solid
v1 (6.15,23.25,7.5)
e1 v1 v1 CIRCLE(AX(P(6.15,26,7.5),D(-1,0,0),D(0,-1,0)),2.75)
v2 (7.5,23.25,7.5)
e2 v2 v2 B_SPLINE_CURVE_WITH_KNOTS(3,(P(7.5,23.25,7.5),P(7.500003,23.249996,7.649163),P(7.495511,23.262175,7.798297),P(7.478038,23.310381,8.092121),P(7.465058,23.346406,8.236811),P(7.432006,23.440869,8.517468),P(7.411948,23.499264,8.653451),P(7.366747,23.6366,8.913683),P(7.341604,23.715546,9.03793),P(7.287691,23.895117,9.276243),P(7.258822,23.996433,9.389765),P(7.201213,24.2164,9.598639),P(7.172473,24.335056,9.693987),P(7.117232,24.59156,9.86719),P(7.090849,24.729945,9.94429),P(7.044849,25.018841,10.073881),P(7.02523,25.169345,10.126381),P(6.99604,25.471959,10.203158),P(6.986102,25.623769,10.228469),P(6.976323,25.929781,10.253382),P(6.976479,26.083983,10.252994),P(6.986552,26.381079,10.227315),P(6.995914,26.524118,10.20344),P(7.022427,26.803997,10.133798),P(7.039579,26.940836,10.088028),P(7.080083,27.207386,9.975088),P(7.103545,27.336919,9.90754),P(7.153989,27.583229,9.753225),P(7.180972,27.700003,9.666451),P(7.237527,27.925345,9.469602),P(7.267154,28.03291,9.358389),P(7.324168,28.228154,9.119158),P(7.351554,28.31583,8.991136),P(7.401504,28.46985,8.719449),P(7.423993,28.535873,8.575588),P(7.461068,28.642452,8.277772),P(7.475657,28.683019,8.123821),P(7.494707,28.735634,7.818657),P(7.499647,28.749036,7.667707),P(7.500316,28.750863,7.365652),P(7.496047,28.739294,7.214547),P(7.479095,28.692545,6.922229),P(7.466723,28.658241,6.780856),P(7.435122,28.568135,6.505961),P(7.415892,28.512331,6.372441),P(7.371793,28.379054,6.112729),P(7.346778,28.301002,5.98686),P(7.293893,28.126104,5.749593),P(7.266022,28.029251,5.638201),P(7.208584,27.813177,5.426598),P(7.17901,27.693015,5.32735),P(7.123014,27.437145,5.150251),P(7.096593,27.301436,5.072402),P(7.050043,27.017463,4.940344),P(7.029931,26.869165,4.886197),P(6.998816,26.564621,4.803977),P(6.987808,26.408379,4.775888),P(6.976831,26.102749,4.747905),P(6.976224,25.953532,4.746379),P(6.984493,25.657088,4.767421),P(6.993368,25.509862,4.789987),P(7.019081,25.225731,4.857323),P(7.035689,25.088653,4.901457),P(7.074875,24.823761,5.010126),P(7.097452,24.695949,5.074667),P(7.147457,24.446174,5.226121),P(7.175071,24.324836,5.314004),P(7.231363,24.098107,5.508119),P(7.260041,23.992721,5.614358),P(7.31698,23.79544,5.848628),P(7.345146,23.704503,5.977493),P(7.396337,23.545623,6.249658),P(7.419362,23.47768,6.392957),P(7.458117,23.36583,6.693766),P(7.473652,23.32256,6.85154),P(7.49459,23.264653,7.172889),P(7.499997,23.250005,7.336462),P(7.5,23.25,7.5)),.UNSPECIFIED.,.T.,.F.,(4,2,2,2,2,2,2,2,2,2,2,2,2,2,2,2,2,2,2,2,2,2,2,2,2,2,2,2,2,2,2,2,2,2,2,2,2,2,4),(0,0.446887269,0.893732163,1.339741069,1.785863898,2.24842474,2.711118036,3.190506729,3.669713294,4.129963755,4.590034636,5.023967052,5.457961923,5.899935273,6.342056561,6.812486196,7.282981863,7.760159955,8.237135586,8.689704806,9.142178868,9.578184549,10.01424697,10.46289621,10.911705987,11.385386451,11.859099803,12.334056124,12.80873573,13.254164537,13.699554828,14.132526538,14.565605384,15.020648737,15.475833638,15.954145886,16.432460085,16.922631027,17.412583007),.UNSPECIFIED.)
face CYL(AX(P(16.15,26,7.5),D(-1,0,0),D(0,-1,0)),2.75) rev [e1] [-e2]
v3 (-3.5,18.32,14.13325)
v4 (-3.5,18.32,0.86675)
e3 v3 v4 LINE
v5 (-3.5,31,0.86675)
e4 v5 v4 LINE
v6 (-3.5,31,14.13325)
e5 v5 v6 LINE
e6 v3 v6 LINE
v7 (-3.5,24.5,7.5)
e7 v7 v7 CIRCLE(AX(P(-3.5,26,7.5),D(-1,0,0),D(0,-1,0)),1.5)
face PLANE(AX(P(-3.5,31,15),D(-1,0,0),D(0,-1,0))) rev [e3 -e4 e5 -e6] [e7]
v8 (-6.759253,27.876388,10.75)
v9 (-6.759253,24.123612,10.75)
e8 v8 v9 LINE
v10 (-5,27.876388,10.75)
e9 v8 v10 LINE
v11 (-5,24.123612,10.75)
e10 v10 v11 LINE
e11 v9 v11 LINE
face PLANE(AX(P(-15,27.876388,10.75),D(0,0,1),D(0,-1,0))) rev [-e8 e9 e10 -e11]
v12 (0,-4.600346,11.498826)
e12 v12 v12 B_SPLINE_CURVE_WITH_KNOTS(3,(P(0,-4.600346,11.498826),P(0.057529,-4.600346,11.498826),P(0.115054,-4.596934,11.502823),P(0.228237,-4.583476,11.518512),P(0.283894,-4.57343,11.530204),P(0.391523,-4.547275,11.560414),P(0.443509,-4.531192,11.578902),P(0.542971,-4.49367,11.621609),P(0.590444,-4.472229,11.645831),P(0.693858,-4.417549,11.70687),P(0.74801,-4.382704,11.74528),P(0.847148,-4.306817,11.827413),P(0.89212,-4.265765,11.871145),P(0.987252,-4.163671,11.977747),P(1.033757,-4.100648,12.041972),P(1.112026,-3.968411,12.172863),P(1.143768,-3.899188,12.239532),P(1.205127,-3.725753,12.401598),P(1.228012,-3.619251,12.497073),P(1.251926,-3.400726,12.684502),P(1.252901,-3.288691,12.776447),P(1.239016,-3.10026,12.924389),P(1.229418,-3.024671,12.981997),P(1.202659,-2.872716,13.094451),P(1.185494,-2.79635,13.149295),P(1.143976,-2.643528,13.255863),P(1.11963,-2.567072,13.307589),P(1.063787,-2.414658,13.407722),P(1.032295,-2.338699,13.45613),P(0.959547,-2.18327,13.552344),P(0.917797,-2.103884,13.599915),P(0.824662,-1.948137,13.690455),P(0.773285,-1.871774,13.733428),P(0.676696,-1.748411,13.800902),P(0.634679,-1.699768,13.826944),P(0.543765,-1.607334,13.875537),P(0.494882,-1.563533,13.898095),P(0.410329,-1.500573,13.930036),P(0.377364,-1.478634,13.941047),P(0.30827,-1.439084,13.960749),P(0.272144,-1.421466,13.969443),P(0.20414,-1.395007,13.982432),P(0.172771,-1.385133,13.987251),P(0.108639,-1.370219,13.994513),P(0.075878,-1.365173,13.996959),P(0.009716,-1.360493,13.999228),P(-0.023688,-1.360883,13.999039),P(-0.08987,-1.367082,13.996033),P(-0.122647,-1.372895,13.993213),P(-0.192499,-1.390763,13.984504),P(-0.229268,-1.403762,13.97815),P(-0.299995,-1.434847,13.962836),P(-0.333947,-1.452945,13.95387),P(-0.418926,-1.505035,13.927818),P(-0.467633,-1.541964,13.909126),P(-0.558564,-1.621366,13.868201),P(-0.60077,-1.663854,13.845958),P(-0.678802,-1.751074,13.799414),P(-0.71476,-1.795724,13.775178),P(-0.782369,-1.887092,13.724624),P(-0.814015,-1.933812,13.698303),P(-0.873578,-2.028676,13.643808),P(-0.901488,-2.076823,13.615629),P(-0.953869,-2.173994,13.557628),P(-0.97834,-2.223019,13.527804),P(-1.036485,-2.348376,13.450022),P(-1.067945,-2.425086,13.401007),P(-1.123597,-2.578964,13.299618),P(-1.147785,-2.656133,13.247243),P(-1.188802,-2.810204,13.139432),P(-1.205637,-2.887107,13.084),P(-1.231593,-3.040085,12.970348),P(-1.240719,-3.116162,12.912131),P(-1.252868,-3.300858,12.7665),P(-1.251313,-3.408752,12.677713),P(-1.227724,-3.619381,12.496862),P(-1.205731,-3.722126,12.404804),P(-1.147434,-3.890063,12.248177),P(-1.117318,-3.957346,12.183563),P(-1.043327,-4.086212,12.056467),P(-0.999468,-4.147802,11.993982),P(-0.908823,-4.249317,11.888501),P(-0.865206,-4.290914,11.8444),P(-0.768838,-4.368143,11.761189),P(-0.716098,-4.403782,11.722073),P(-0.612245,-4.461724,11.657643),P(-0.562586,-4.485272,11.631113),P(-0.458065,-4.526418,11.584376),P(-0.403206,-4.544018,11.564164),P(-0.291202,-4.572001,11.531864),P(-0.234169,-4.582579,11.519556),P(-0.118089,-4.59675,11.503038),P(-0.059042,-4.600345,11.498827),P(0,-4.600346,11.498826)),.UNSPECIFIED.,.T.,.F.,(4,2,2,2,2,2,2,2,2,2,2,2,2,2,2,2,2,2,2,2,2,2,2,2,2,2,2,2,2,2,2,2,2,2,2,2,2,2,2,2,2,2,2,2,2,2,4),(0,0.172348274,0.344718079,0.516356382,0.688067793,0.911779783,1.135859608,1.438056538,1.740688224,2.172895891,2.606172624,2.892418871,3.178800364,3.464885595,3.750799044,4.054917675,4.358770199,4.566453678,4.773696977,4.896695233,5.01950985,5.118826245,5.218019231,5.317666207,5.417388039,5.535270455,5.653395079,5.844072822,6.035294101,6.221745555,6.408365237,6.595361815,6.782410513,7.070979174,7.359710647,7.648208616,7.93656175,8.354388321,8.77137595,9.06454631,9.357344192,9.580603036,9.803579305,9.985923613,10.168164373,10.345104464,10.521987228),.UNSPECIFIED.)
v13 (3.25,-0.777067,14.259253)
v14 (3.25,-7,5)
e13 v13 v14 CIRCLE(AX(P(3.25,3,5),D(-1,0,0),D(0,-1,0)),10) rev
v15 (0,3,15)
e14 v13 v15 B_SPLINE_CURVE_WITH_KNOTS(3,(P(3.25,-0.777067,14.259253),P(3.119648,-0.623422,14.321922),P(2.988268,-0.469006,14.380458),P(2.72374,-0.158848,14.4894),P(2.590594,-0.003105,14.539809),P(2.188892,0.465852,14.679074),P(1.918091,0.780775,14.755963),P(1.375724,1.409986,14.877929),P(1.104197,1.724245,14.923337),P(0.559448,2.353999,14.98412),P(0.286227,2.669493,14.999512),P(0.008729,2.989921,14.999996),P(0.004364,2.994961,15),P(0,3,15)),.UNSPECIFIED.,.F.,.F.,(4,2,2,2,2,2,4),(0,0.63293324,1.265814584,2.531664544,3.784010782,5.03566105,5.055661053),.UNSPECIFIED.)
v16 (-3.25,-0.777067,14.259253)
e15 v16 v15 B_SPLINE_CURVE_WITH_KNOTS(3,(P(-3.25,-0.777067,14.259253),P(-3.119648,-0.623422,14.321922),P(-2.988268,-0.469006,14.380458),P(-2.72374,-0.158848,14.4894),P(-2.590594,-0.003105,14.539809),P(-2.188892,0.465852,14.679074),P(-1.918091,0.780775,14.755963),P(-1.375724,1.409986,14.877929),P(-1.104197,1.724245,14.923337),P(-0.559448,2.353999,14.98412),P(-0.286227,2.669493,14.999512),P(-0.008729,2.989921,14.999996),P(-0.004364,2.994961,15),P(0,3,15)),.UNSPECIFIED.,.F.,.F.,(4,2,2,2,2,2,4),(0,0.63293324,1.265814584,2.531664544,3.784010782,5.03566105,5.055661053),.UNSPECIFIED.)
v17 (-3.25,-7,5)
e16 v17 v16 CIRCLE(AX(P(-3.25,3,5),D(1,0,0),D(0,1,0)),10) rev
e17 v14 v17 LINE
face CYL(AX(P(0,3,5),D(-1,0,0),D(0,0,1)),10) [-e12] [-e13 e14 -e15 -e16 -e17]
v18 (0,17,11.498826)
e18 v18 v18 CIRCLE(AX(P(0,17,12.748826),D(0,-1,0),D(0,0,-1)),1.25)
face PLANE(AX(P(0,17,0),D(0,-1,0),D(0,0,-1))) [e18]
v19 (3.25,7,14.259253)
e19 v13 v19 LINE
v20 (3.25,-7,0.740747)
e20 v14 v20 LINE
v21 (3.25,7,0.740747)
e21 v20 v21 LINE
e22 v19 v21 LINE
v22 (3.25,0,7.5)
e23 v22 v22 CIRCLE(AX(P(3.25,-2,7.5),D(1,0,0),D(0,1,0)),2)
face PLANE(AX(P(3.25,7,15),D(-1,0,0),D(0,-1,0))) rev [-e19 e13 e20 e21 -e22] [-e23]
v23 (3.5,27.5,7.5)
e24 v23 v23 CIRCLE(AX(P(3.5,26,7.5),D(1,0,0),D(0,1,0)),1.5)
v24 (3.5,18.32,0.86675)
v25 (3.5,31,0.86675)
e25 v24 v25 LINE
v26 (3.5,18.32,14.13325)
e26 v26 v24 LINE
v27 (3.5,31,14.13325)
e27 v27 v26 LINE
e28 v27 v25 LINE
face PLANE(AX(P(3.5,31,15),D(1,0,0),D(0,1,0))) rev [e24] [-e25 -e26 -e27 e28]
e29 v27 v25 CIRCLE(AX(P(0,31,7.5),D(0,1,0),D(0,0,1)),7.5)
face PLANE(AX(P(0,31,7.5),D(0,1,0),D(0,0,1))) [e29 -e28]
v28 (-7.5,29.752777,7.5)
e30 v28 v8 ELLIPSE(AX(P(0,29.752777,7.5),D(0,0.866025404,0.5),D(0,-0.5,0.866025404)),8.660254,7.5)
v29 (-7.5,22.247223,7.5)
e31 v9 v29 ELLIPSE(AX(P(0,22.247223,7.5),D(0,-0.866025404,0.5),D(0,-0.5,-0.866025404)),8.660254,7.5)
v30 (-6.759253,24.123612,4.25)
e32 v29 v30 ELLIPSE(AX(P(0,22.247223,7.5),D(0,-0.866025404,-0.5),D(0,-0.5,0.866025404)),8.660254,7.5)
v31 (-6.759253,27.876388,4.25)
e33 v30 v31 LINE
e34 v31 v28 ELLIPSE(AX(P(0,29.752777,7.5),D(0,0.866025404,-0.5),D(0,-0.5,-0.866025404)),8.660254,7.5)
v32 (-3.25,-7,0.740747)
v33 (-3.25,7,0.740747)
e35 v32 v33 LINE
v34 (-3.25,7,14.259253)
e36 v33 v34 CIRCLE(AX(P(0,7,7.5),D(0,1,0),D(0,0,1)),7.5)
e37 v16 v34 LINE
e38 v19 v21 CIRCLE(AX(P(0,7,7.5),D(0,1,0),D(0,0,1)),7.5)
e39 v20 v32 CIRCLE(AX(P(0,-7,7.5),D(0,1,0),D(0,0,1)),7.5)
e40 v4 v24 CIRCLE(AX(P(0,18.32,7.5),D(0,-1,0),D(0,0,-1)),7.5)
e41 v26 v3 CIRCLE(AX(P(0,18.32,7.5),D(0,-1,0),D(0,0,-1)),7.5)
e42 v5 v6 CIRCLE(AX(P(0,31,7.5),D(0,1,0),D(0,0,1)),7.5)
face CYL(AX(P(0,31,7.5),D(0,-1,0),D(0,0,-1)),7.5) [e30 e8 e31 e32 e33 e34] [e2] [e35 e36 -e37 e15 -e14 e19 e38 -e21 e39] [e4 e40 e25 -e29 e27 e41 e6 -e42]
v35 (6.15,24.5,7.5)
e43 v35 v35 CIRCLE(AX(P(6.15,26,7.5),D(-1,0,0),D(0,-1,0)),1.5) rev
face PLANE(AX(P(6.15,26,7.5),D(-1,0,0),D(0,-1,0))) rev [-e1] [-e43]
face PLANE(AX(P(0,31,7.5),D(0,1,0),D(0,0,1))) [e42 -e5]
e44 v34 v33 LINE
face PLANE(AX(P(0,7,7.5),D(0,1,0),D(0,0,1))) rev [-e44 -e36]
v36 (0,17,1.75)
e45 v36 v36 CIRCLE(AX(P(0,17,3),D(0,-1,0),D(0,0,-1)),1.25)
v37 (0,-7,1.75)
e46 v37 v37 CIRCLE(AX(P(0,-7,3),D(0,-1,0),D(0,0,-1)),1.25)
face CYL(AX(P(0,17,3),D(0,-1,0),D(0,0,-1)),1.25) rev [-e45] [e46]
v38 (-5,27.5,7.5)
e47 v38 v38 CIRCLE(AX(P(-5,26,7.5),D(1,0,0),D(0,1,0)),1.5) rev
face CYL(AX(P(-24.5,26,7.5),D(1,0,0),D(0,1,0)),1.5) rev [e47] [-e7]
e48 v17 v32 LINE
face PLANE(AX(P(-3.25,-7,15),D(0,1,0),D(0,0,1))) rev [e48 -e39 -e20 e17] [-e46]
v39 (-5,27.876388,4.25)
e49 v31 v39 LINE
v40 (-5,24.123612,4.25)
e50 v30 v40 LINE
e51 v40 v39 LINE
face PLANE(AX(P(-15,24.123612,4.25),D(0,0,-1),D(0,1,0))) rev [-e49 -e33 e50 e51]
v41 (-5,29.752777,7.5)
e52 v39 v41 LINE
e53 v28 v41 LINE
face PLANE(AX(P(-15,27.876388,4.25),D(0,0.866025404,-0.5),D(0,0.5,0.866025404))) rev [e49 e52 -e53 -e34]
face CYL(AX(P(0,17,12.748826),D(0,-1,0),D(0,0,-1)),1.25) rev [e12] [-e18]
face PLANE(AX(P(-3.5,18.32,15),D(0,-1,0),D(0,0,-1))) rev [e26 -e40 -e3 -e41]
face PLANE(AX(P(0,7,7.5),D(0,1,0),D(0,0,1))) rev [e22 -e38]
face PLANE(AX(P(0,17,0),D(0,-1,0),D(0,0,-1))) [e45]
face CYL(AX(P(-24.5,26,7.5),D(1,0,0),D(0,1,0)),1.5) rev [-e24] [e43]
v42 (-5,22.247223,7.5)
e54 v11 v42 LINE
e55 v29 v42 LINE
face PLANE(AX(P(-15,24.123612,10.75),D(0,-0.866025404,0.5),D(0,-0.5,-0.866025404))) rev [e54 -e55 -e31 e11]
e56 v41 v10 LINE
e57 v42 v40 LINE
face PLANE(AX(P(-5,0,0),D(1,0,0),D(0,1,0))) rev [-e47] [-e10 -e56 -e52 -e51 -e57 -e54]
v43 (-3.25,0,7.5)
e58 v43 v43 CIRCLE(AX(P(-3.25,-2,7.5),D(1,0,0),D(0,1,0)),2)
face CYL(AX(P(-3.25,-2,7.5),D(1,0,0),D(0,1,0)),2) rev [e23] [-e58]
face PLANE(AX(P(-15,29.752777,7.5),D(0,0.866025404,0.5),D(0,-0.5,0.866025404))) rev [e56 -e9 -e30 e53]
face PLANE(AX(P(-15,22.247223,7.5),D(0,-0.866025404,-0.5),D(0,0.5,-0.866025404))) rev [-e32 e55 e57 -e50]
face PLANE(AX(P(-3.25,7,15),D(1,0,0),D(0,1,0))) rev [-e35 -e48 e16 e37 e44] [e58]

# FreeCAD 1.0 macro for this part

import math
import FreeCAD as App
import Part
import Sketcher

V = App.Vector
Q = App.Units.Quantity


def edges_at(feature, points):
    """Names of the edges that pass closest to the given points."""
    edges = feature.Shape.Edges
    near = lambda p: min(range(len(edges)), key=lambda i: edges[i].distToShape(Part.Vertex(*p))[0])
    return sorted({f"Edge{near(p) + 1}" for p in points})

doc = App.newDocument("Part")
body = doc.addObject("PartDesign::Body", "Body")

# Sketch on XY plane
sketch1 = body.newObject("Sketcher::SketchObject", "Sketch")
sketch1.AttachmentSupport = (doc.getObject("XY_Plane"), [""])
sketch1.MapMode = "FlatFace"
sketch1.addGeometry([
    Part.LineSegment(V(-3, 7, 0), V(-3, -7, 0)),
    Part.LineSegment(V(-3, -7, 0), V(3, -7, 0)),
    Part.LineSegment(V(3, -7, 0), V(3, 7, 0)),
    Part.LineSegment(V(3, 7, 0), V(-3, 7, 0)),
], False)
sketch1.addConstraint([
    Sketcher.Constraint("Coincident", 0, 2, 1, 1),
    Sketcher.Constraint("Coincident", 1, 2, 2, 1),
    Sketcher.Constraint("Coincident", 2, 2, 3, 1),
    Sketcher.Constraint("Coincident", 3, 2, 0, 1),
    Sketcher.Constraint("Vertical", 0),
    Sketcher.Constraint("Horizontal", 1),
    Sketcher.Constraint("Vertical", 2),
    Sketcher.Constraint("Horizontal", 3),
    Sketcher.Constraint("Symmetric", 0, 2, 2, 2, -1, 1),
    Sketcher.Constraint("DistanceY", 0, 2, 0, 1, Q("14 mm")),
    Sketcher.Constraint("DistanceX", 1, 1, 1, 2, Q("6.5 mm")),
])
pad1 = body.newObject("PartDesign::Pad", "Pad")
pad1.Profile = sketch1
pad1.Length = 15
doc.recompute()

fillet = body.newObject("PartDesign::Fillet", "Fillet")
fillet.Base = (pad1, edges_at(pad1, [(0, -7, 15)]))
fillet.Radius = 10

# Sketch on YZ plane
sketch2 = body.newObject("Sketcher::SketchObject", "Sketch001")
sketch2.AttachmentSupport = (doc.getObject("YZ_Plane"), [""])
sketch2.MapMode = "FlatFace"
sketch2.AttachmentOffset = App.Placement(V(0, 0, 3.25), App.Rotation())
sketch2.addGeometry(Part.Circle(V(-2, 7.5, 0), V(0, 0, 1), 2), False)
sketch2.addConstraint([
    Sketcher.Constraint("Diameter", 0, Q("4 mm")),
    Sketcher.Constraint("DistanceX", 0, 3, -1, 1, Q("2 mm")),
    Sketcher.Constraint("DistanceY", -1, 1, 0, 3, Q("7.5 mm")),
])
pocket1 = body.newObject("PartDesign::Pocket", "Pocket")
pocket1.Profile = sketch2
pocket1.Type = "ThroughAll"

# Sketch on XZ plane
sketch3 = body.newObject("Sketcher::SketchObject", "Sketch002")
sketch3.AttachmentSupport = (doc.getObject("XZ_Plane"), [""])
sketch3.MapMode = "FlatFace"
sketch3.AttachmentOffset = App.Placement(V(0, 0, -7), App.Rotation())
sketch3.addGeometry(Part.Circle(V(0, 8, 0), V(0, 0, 1), 8), False)
sketch3.addConstraint([
    Sketcher.Constraint("PointOnObject", 0, 3, -2),
    Sketcher.Constraint("Diameter", 0, Q("15 mm")),
    Sketcher.Constraint("DistanceY", -1, 1, 0, 3, Q("7.5 mm")),
])
pad2 = body.newObject("PartDesign::Pad", "Pad001")
pad2.Profile = sketch3
pad2.Length = 24
pad2.Reversed = True

# Sketch on XY plane
sketch4 = body.newObject("Sketcher::SketchObject", "Sketch003")
sketch4.AttachmentSupport = (doc.getObject("XY_Plane"), [""])
sketch4.MapMode = "FlatFace"
sketch4.addGeometry([
    Part.LineSegment(V(4, 31, 0), V(4, 18, 0)),
    Part.LineSegment(V(4, 18, 0), V(-4, 18, 0)),
    Part.LineSegment(V(-4, 18, 0), V(-4, 31, 0)),
    Part.LineSegment(V(-4, 31, 0), V(4, 31, 0)),
], False)
sketch4.addConstraint([
    Sketcher.Constraint("Coincident", 0, 2, 1, 1),
    Sketcher.Constraint("Coincident", 1, 2, 2, 1),
    Sketcher.Constraint("Coincident", 2, 2, 3, 1),
    Sketcher.Constraint("Coincident", 3, 2, 0, 1),
    Sketcher.Constraint("Vertical", 0),
    Sketcher.Constraint("Horizontal", 1),
    Sketcher.Constraint("Vertical", 2),
    Sketcher.Constraint("Horizontal", 3),
    Sketcher.Constraint("DistanceX", 1, 2, 1, 1, Q("7 mm")),
    Sketcher.Constraint("DistanceY", -1, 1, 2, 2, Q("31 mm")),
    Sketcher.Constraint("DistanceY", 0, 2, 0, 1, Q("12.68 mm")),
    Sketcher.Constraint("DistanceX", -1, 1, 0, 2, Q("3.5 mm")),
])
pocket2 = body.newObject("PartDesign::Pocket", "Pocket001")
pocket2.Profile = sketch4
pocket2.Type = "ThroughAll"
pocket2.Reversed = True

# Sketch on XZ plane
sketch5 = body.newObject("Sketcher::SketchObject", "Sketch004")
sketch5.AttachmentSupport = (doc.getObject("XZ_Plane"), [""])
sketch5.MapMode = "FlatFace"
sketch5.AttachmentOffset = App.Placement(V(0, 0, -7), App.Rotation())
sketch5.addGeometry([
    Part.ArcOfCircle(Part.Circle(V(0, 7.5, 0), V(0, 0, 1), 7.5), math.radians(90), math.radians(116)),  # 0
    Part.LineSegment(V(-3.2, 14.3, 0), V(-3.2, 15, 0)),  # 1
    Part.LineSegment(V(-3.2, 15, 0), V(0, 15, 0)),  # 2
    Part.ArcOfCircle(Part.Circle(V(0, 7.5, 0), V(0, 0, 1), 7.5), math.radians(64), math.radians(90)),  # 3
    Part.LineSegment(V(0, 15, 0), V(3.2, 15, 0)),  # 4
    Part.LineSegment(V(3.2, 15, 0), V(3.2, 14.3, 0)),  # 5
    Part.ArcOfCircle(Part.Circle(V(0, 7.5, 0), V(0, 0, 1), 7.5), math.radians(-116), math.radians(-90)),  # 6
    Part.LineSegment(V(0, 0, 0), V(-3.2, 0, 0)),  # 7
    Part.LineSegment(V(-3.2, 0, 0), V(-3.2, 0.7, 0)),  # 8
    Part.LineSegment(V(3.2, 0, 0), V(0, 0, 0)),  # 9
    Part.ArcOfCircle(Part.Circle(V(0, 7.5, 0), V(0, 0, 1), 7.5), math.radians(-90), math.radians(-64)),  # 10
    Part.LineSegment(V(3.2, 0.7, 0), V(3.2, 0, 0)),  # 11
], False)
sketch5.addConstraint([
    Sketcher.Constraint("Coincident", 0, 2, 1, 1),
    Sketcher.Constraint("Coincident", 1, 2, 2, 1),
    Sketcher.Constraint("Tangent", 2, 2, 0, 1),
    Sketcher.Constraint("Tangent", 3, 2, 4, 1),
    Sketcher.Constraint("Coincident", 4, 2, 5, 1),
    Sketcher.Constraint("Coincident", 5, 2, 3, 1),
    Sketcher.Constraint("Tangent", 6, 2, 7, 1),
    Sketcher.Constraint("Coincident", 7, 2, 8, 1),
    Sketcher.Constraint("Coincident", 8, 2, 6, 1),
    Sketcher.Constraint("Tangent", 9, 2, 10, 1),
    Sketcher.Constraint("Coincident", 10, 2, 11, 1),
    Sketcher.Constraint("Coincident", 11, 2, 9, 1),
    Sketcher.Constraint("Vertical", 1),
    Sketcher.Constraint("Horizontal", 2),
    Sketcher.Constraint("Horizontal", 4),
    Sketcher.Constraint("Vertical", 5),
    Sketcher.Constraint("Horizontal", 7),
    Sketcher.Constraint("Vertical", 8),
    Sketcher.Constraint("Horizontal", 9),
    Sketcher.Constraint("Vertical", 11),
    Sketcher.Constraint("Coincident", 6, 2, -1, 1),
    Sketcher.Constraint("Coincident", 9, 2, -1, 1),
    Sketcher.Constraint("Coincident", 3, 3, 0, 3),
    Sketcher.Constraint("Coincident", 6, 3, 0, 3),
    Sketcher.Constraint("Equal", 0, 3),
    Sketcher.Constraint("Equal", 3, 6),
    Sketcher.Constraint("Equal", 6, 10),
    Sketcher.Constraint("Horizontal", 0, 2, 5, 2),
    Sketcher.Constraint("Horizontal", 8, 2, 10, 2),
    Sketcher.Constraint("Vertical", 1, 2, 7, 2),
    Sketcher.Constraint("Radius", 0, Q("7.5 mm")),
    Sketcher.Constraint("DistanceX", 2, 1, 2, 2, Q("3.25 mm")),
])
pocket3 = body.newObject("PartDesign::Pocket", "Pocket002")
pocket3.Profile = sketch5
pocket3.Type = "ThroughAll"
pocket3.Reversed = True

# Sketch on YZ plane
sketch6 = body.newObject("Sketcher::SketchObject", "Sketch005")
sketch6.AttachmentSupport = (doc.getObject("YZ_Plane"), [""])
sketch6.MapMode = "FlatFace"
sketch6.AttachmentOffset = App.Placement(V(0, 0, -3.5), App.Rotation())
sketch6.addGeometry(Part.Circle(V(26, 7.5, 0), V(0, 0, 1), 1.5), False)
sketch6.addConstraint([
    Sketcher.Constraint("Diameter", 0, Q("3 mm")),
    Sketcher.Constraint("DistanceX", -1, 1, 0, 3, Q("26 mm")),
    Sketcher.Constraint("DistanceY", -1, 1, 0, 3, Q("7.5 mm")),
])
pocket4 = body.newObject("PartDesign::Pocket", "Pocket003")
pocket4.Profile = sketch6
pocket4.Length = 42
pocket4.Midplane = True

# Sketch on YZ plane
sketch7 = body.newObject("Sketcher::SketchObject", "Sketch006")
sketch7.AttachmentSupport = (doc.getObject("YZ_Plane"), [""])
sketch7.MapMode = "FlatFace"
sketch7.AttachmentOffset = App.Placement(V(0, 0, 6.15), App.Rotation())
sketch7.addGeometry(Part.Circle(V(26, 7.5, 0), V(0, 0, 1), 2.8), False)
sketch7.addConstraint([
    Sketcher.Constraint("Diameter", 0, Q("5.5 mm")),
    Sketcher.Constraint("DistanceX", -1, 1, 0, 3, Q("26 mm")),
    Sketcher.Constraint("DistanceY", -1, 1, 0, 3, Q("7.5 mm")),
])
pocket5 = body.newObject("PartDesign::Pocket", "Pocket004")
pocket5.Profile = sketch7
pocket5.Length = 10
pocket5.Reversed = True

# Sketch on YZ plane
sketch8 = body.newObject("Sketcher::SketchObject", "Sketch007")
sketch8.AttachmentSupport = (doc.getObject("YZ_Plane"), [""])
sketch8.MapMode = "FlatFace"
sketch8.AttachmentOffset = App.Placement(V(0, 0, -5), App.Rotation())
sketch8.addGeometry([
    Part.LineSegment(V(29.8, 7.5, 0), V(27.9, 10.8, 0)),  # 0
    Part.LineSegment(V(27.9, 10.8, 0), V(24.1, 10.8, 0)),  # 1
    Part.LineSegment(V(24.1, 10.8, 0), V(22.2, 7.5, 0)),  # 2
    Part.LineSegment(V(22.2, 7.5, 0), V(24.1, 4.2, 0)),  # 3
    Part.LineSegment(V(24.1, 4.2, 0), V(27.9, 4.2, 0)),  # 4
    Part.LineSegment(V(27.9, 4.2, 0), V(29.8, 7.5, 0)),  # 5
], False)
sketch8.addConstraint([
    Sketcher.Constraint("Coincident", 0, 2, 1, 1),
    Sketcher.Constraint("Coincident", 1, 2, 2, 1),
    Sketcher.Constraint("Coincident", 2, 2, 3, 1),
    Sketcher.Constraint("Coincident", 3, 2, 4, 1),
    Sketcher.Constraint("Coincident", 4, 2, 5, 1),
    Sketcher.Constraint("Coincident", 5, 2, 0, 1),
    Sketcher.Constraint("Horizontal", 1),
    Sketcher.Constraint("Horizontal", 4),
    Sketcher.Constraint("Parallel", 0, 3),
    Sketcher.Constraint("Parallel", 2, 5),
    Sketcher.Constraint("Horizontal", 2, 2, 5, 2),
    Sketcher.Constraint("Vertical", 1, 2, 3, 2),
    Sketcher.Constraint("Vertical", 0, 2, 4, 2),
    Sketcher.Constraint("Angle", 0, Q("120 deg")),
    Sketcher.Constraint("DistanceY", -1, 1, 2, 2, Q("7.5 mm")),
    Sketcher.Constraint("DistanceY", 3, 2, 1, 2, Q("6.5 mm")),
    Sketcher.Constraint("DistanceX", 1, 2, 1, 1, Q("3.752777 mm")),
    Sketcher.Constraint("DistanceX", -1, 1, 0, 2, Q("27.876388 mm")),
])
pocket6 = body.newObject("PartDesign::Pocket", "Pocket005")
pocket6.Profile = sketch8
pocket6.Length = 10

# Sketch on XZ plane
sketch9 = body.newObject("Sketcher::SketchObject", "Sketch008")
sketch9.AttachmentSupport = (doc.getObject("XZ_Plane"), [""])
sketch9.MapMode = "FlatFace"
sketch9.AttachmentOffset = App.Placement(V(0, 0, 7), App.Rotation())
sketch9.addGeometry([
    Part.Circle(V(0, 12.7, 0), V(0, 0, 1), 1.2),
    Part.Circle(V(0, 3, 0), V(0, 0, 1), 1.2),
], False)
sketch9.addConstraint([
    Sketcher.Constraint("Equal", 0, 1),
    Sketcher.Constraint("PointOnObject", 0, 3, -2),
    Sketcher.Constraint("PointOnObject", 1, 3, -2),
    Sketcher.Constraint("Diameter", 0, Q("2.5 mm")),
    Sketcher.Constraint("DistanceY", -1, 1, 1, 3, Q("3 mm")),
    Sketcher.Constraint("DistanceY", -1, 1, 0, 3, Q("12.748826 mm")),
])
pocket7 = body.newObject("PartDesign::Pocket", "Pocket006")
pocket7.Profile = sketch9
pocket7.Length = 24

doc.recompute()
